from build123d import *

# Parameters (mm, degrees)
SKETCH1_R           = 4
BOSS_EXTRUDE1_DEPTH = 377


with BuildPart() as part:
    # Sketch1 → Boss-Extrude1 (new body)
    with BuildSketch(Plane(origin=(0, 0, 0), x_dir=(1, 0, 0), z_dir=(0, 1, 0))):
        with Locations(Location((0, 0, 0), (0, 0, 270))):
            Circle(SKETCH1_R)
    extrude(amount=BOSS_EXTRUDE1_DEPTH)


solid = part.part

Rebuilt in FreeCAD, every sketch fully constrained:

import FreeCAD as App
import Part
import Sketcher

doc = App.newDocument("Part")
body = doc.addObject("PartDesign::Body", "Body")

# Sketch on XZ plane
sketch1 = body.newObject("Sketcher::SketchObject", "Sketch")
sketch1.AttachmentSupport = (doc.getObject("XZ_Plane"), [""])
sketch1.MapMode = "FlatFace"
sketch1.addGeometry(Part.Circle(App.Vector(0, 0, 0), App.Vector(0, 0, 1), 4), False)
sketch1.addConstraint([
    Sketcher.Constraint("Coincident", 0, 3, -1, 1),
    Sketcher.Constraint("Diameter", 0, 8.0),
])
pad1 = body.newObject("PartDesign::Pad", "Pad")
pad1.Profile = sketch1
pad1.Length = 377
pad1.Reversed = True

doc.recompute()
